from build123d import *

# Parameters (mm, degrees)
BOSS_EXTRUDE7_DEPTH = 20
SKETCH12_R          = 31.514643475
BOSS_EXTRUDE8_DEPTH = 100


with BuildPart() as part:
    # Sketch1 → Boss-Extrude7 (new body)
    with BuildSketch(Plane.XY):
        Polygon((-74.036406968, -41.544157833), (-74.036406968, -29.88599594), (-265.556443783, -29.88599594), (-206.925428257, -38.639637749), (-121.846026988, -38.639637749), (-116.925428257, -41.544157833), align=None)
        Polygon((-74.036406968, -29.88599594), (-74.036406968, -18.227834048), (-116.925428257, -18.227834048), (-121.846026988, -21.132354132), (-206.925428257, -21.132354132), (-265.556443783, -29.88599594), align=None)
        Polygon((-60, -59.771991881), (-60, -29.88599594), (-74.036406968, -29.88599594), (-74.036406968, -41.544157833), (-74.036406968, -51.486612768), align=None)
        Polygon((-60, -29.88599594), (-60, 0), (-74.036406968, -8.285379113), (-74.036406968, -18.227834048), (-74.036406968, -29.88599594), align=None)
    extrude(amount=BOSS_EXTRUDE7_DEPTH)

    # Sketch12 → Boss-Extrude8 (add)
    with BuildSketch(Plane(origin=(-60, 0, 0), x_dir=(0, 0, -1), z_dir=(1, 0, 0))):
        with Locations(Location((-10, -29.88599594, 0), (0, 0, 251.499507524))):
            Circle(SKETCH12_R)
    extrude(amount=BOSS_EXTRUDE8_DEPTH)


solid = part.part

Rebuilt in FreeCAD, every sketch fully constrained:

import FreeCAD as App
import Part
import Sketcher
from FreeCAD import Vector
Q = App.Units.Quantity


def add_polygon(sketch, points):
    """Adds a closed chain of lines whose ends are joined by coincident constraints."""
    first, n = sketch.GeometryCount, len(points)
    for a, b in zip(points, points[1:] + points[:1]):
        sketch.addGeometry(Part.LineSegment(App.Vector(*a, 0), App.Vector(*b, 0)), False)
    for i in range(n):
        sketch.addConstraint(Sketcher.Constraint("Coincident", first + i, 2, first + (i + 1) % n, 1))

doc = App.newDocument("Part")
body = doc.addObject("PartDesign::Body", "Body")

sketch1 = body.newObject("Sketcher::SketchObject", "Sketch")
sketch1.AttachmentSupport = (doc.getObject("XY_Plane"), [""])
sketch1.MapMode = "FlatFace"
add_polygon(sketch1, [(-74, -18), (-117, -18), (-122, -21), (-207, -21), (-266, -30), (-207, -39), (-122, -39), (-117, -42), (-74, -42), (-74, -51), (-60, -60), (-60, 0), (-74, -8)])
sketch1.addConstraint([
    Sketcher.Constraint("Horizontal", 0),
    Sketcher.Constraint("Horizontal", 2),
    Sketcher.Constraint("Horizontal", 5),
    Sketcher.Constraint("Horizontal", 7),
    Sketcher.Constraint("Vertical", 8),
    Sketcher.Constraint("Vertical", 10),
    Sketcher.Constraint("Vertical", 12),
    Sketcher.Constraint("PointOnObject", 10, 2, -1),
    Sketcher.Constraint("Parallel", 6, 9),
    Sketcher.Constraint("Parallel", 1, 11),
    Sketcher.Constraint("Vertical", 2, 2, 4, 2),
    Sketcher.Constraint("Vertical", 1, 2, 5, 2),
    Sketcher.Constraint("Vertical", 0, 2, 6, 2),
    Sketcher.Constraint("Vertical", 8, 2, 11, 2),
    Sketcher.Constraint("Equal", 8, 12),
    Sketcher.Constraint("Equal", 3, 4),
    Sketcher.Constraint("Equal", 1, 6),
    Sketcher.Constraint("DistanceX", 9, 2, -1, 1, Q("60 mm")),
    Sketcher.Constraint("DistanceX", 2, 2, 0, 2, Q("90 mm")),
    Sketcher.Constraint("DistanceX", 2, 2, 2, 1, Q("85.079401 mm")),
    Sketcher.Constraint("DistanceX", 0, 2, 0, 1, Q("42.889021 mm")),
    Sketcher.Constraint("DistanceY", 10, 1, 10, 2, Q("59.771992 mm")),
    Sketcher.Constraint("Distance", 1, Q("5.713889 mm")),
    Sketcher.Constraint("DistanceY", 8, 2, 8, 1, Q("9.942455 mm")),
    Sketcher.Constraint("DistanceX", 0, 2, -1, 1, Q("116.925428 mm")),
    Sketcher.Constraint("Distance", 3, Q("59.280876 mm")),
])
pad1 = body.newObject("PartDesign::Pad", "Pad")
pad1.Profile = sketch1
pad1.Length = 20

sketch2 = body.newObject("Sketcher::SketchObject", "Sketch001")
sketch2.AttachmentSupport = (doc.getObject("YZ_Plane"), [""])
sketch2.MapMode = "FlatFace"
sketch2.AttachmentOffset = App.Placement(Vector(0, 0, -60), App.Rotation())
sketch2.addGeometry(Part.Circle(Vector(-30, 10, 0), Vector(0, 0, 1), 32), False)
sketch2.addConstraint([
    Sketcher.Constraint("DistanceY", -1, 1, 0, 3, Q("10 mm")),
    Sketcher.Constraint("Diameter", 0, Q("63.029287 mm")),
    Sketcher.Constraint("DistanceX", 0, 3, -1, 1, Q("29.885996 mm")),
])
pad2 = body.newObject("PartDesign::Pad", "Pad001")
pad2.Profile = sketch2
pad2.Length = 100

doc.recompute()
